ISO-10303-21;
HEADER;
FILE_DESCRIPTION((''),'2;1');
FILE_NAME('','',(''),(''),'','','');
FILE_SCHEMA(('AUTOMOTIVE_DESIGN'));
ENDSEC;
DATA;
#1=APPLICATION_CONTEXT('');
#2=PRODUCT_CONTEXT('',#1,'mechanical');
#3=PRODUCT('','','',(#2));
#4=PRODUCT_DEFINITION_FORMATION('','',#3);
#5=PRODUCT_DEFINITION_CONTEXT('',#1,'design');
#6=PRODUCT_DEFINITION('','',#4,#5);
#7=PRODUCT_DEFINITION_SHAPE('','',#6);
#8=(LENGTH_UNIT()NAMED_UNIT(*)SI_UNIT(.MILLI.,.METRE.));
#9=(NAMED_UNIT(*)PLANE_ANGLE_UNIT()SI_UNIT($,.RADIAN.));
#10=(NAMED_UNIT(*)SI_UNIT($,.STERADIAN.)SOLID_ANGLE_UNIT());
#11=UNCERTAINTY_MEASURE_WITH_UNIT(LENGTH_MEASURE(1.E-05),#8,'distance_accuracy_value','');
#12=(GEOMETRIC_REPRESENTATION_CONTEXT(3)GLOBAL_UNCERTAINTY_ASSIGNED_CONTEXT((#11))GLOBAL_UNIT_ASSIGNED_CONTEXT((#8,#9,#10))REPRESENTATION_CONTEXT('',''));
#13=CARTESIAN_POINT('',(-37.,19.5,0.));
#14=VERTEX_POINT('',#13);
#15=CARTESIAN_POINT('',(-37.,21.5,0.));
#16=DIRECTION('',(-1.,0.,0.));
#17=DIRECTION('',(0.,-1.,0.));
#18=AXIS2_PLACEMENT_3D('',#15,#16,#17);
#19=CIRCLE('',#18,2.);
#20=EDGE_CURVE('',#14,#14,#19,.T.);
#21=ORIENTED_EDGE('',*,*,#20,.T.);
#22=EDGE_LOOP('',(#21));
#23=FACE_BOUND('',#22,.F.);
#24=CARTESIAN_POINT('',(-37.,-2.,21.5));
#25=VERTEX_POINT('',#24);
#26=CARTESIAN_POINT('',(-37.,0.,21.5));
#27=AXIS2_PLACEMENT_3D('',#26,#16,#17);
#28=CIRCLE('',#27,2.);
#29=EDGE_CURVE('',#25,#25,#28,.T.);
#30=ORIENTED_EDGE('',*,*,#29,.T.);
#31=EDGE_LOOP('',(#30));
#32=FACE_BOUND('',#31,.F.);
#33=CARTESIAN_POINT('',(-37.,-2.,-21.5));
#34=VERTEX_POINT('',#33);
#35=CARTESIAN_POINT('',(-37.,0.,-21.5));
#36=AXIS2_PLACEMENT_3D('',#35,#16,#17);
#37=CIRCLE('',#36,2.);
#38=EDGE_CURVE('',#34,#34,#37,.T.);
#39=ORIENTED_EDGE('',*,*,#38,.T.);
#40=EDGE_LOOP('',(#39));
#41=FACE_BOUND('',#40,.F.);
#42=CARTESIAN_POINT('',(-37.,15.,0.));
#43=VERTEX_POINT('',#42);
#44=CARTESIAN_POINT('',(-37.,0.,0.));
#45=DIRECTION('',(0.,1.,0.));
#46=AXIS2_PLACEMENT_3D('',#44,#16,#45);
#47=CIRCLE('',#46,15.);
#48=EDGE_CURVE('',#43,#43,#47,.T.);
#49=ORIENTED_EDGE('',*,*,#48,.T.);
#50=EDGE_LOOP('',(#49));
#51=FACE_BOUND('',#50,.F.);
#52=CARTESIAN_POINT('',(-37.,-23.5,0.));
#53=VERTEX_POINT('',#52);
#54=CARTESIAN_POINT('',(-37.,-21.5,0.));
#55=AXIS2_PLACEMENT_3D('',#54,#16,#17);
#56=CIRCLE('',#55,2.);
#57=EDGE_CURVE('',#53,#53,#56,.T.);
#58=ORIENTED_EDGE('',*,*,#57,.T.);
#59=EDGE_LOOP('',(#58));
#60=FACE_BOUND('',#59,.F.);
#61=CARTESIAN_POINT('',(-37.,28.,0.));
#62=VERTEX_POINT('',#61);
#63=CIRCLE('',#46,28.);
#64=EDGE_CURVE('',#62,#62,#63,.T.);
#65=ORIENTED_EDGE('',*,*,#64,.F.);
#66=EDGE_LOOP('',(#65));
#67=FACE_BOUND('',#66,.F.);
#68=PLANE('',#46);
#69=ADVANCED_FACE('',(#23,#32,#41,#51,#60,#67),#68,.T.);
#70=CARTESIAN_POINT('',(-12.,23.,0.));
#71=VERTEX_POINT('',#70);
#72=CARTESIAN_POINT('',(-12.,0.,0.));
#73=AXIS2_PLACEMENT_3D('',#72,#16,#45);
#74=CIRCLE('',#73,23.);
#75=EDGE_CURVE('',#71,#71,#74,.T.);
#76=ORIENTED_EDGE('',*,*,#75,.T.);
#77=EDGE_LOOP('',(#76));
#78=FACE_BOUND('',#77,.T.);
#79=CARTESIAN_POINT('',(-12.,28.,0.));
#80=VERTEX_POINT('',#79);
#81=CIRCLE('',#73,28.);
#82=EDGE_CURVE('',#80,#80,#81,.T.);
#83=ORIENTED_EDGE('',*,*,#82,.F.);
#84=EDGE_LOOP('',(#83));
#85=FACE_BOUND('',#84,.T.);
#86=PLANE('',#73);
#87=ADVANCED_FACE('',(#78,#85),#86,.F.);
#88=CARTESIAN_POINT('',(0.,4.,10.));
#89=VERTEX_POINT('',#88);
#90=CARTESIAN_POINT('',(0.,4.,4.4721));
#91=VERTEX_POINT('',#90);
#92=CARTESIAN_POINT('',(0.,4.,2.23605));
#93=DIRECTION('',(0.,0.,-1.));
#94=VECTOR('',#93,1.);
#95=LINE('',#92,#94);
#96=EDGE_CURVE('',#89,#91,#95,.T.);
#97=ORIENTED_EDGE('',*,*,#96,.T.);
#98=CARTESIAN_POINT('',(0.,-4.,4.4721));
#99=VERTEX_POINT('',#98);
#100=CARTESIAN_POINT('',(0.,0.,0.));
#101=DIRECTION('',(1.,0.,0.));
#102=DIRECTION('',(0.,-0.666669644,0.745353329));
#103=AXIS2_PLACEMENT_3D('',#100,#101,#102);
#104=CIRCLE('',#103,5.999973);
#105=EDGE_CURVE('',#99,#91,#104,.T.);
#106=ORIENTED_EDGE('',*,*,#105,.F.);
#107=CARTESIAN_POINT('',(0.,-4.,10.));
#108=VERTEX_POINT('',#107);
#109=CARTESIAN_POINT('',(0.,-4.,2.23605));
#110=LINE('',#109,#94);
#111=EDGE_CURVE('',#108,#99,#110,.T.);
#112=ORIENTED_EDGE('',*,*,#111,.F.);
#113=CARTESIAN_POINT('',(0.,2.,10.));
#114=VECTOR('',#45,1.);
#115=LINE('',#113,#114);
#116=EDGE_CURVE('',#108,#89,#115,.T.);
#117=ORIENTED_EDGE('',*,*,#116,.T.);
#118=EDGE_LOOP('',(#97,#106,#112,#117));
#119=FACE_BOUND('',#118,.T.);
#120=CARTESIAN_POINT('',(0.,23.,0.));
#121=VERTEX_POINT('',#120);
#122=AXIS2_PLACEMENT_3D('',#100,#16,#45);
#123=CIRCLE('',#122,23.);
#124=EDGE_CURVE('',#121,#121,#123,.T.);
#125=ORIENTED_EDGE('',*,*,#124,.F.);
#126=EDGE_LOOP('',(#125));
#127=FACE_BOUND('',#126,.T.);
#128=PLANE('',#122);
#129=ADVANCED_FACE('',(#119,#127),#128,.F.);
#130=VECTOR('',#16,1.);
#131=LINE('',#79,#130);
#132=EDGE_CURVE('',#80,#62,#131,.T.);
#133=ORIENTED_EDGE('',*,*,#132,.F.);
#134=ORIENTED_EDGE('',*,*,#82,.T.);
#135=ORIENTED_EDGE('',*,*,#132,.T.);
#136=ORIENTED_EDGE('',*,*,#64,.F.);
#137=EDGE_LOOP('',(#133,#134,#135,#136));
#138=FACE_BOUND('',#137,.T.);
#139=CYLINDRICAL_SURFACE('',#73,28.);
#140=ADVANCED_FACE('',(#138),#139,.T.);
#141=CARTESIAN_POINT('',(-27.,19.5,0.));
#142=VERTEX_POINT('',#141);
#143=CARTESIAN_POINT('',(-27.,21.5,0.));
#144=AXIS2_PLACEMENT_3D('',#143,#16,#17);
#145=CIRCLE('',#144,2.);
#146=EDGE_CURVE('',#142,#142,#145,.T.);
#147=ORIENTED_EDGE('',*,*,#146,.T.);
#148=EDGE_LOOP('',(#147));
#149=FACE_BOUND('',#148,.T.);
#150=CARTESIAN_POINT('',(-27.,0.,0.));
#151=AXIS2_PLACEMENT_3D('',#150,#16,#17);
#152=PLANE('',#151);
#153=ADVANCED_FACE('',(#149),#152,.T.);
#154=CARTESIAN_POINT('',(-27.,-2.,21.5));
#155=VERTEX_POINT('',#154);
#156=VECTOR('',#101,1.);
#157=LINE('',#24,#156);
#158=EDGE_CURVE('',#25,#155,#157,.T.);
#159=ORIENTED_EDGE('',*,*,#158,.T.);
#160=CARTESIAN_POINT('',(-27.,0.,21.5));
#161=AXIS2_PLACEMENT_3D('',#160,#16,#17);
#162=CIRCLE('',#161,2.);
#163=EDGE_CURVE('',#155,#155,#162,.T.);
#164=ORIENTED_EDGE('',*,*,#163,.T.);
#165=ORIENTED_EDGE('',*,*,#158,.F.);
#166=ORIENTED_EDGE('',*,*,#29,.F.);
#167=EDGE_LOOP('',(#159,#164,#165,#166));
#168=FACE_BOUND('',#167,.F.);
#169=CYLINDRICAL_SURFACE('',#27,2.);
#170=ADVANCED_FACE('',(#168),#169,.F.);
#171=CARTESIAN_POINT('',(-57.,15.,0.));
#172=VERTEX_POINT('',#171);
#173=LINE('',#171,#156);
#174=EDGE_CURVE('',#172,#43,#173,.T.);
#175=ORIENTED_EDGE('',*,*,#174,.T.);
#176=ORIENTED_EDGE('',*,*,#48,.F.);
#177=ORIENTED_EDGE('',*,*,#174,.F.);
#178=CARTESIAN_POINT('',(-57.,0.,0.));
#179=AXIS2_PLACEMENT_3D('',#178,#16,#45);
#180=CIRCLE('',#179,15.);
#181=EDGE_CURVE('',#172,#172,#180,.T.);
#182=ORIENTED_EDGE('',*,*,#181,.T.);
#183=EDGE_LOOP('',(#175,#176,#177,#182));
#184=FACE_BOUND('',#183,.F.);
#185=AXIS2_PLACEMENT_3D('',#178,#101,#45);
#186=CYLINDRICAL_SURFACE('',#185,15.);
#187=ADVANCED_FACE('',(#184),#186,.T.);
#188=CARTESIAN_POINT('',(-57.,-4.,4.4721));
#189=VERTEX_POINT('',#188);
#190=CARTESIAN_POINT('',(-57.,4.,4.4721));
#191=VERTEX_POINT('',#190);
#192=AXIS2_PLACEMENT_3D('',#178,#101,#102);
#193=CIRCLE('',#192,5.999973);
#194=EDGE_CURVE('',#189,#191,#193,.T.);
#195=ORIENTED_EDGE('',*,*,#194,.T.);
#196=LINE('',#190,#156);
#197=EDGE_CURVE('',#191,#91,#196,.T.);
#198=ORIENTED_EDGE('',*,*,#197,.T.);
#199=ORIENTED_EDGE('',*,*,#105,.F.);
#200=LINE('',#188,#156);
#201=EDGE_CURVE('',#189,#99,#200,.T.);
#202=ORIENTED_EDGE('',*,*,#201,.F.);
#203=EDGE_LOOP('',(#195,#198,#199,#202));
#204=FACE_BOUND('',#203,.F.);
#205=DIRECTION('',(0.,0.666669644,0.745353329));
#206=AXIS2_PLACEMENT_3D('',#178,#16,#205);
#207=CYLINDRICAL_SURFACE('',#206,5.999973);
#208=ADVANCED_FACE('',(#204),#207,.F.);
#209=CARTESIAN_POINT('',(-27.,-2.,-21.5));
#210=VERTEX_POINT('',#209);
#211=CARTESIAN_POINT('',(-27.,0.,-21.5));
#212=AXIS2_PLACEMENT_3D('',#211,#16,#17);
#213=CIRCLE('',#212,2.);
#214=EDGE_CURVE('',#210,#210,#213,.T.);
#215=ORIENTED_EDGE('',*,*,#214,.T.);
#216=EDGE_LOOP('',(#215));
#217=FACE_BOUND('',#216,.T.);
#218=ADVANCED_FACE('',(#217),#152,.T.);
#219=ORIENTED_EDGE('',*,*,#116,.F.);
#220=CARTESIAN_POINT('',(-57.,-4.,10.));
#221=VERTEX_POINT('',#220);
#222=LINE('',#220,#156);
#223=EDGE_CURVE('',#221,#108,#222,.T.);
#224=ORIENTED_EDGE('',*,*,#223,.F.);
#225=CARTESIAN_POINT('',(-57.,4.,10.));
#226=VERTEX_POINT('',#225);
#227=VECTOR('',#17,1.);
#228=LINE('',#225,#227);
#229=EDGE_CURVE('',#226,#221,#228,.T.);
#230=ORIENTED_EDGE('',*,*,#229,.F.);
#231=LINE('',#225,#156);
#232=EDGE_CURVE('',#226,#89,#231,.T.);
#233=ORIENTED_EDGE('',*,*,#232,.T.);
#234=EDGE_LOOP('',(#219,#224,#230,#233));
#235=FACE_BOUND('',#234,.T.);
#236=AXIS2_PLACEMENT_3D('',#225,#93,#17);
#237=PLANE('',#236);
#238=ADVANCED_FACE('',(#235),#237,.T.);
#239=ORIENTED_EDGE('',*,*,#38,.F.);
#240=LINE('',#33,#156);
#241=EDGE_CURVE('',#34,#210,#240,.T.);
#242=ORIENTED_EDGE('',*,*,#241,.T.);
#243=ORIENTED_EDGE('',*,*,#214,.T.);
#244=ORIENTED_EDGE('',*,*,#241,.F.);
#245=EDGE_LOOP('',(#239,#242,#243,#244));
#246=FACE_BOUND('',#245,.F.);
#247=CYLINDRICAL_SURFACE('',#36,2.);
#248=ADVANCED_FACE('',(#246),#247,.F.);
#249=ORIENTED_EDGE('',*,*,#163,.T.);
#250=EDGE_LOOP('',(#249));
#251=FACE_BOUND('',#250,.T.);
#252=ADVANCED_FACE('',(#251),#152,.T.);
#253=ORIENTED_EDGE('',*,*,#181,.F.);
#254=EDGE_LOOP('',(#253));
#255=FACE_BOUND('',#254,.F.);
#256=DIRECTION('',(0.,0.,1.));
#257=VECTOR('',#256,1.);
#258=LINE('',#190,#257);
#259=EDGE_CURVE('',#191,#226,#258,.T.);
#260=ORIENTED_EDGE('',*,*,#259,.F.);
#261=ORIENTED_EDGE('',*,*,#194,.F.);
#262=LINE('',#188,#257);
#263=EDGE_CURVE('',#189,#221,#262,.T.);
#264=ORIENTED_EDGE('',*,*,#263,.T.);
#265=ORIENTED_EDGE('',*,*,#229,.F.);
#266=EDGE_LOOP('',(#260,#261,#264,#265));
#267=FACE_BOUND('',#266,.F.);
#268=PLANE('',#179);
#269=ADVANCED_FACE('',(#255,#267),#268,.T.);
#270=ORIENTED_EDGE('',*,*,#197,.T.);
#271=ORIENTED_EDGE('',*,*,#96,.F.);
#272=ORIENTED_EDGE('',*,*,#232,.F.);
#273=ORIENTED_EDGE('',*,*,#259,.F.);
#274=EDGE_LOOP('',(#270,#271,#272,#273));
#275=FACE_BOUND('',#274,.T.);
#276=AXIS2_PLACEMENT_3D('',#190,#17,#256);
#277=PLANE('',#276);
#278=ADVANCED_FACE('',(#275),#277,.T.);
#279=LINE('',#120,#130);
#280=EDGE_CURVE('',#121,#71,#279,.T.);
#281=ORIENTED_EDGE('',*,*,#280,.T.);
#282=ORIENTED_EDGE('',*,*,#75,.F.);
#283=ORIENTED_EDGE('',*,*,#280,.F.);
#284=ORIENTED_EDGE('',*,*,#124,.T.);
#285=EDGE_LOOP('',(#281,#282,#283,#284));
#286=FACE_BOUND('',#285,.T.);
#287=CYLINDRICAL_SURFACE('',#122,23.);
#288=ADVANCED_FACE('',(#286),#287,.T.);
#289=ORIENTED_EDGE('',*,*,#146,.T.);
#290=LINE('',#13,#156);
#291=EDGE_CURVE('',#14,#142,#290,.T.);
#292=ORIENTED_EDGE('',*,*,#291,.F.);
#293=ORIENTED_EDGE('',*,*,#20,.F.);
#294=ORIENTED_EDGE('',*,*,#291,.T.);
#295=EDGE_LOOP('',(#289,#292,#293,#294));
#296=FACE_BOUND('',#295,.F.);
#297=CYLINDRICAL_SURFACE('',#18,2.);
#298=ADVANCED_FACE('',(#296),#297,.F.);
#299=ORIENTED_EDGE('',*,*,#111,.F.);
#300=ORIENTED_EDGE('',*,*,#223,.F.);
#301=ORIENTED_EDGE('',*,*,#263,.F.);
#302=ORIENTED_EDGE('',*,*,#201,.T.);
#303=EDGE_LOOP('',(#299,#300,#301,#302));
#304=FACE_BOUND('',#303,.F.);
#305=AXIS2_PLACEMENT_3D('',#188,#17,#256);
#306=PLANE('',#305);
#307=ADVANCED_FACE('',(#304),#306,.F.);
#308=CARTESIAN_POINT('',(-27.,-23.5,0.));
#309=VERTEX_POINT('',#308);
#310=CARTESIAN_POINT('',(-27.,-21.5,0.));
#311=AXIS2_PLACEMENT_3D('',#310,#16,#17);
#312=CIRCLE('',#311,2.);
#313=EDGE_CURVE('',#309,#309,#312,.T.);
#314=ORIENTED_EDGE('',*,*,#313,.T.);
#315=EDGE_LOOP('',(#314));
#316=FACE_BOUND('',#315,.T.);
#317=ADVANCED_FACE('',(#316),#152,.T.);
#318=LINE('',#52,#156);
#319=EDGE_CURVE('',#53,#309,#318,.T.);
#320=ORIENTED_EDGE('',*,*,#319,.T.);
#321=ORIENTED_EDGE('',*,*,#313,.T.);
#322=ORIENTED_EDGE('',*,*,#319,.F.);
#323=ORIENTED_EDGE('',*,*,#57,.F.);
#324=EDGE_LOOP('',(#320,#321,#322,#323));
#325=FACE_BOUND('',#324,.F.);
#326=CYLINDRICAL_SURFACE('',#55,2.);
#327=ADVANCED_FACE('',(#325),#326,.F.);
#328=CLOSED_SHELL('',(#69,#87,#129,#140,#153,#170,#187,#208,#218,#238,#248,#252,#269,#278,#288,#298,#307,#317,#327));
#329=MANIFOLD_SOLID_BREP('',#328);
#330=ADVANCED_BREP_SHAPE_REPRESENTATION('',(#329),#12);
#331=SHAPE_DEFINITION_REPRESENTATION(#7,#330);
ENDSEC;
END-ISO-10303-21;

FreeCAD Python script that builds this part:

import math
import FreeCAD as App
import Part
import Sketcher

V = App.Vector

doc = App.newDocument("Part")
params = doc.addObject("Spreadsheet::Sheet", "Params")
for row, (alias, value) in enumerate([
    ("sketch1_width", "57 mm"),
    ("sketch1_width2", "12 mm"),
    ("sketch1_width3", "25 mm"),
    ("sketch1_height", "23 mm"),
    ("sketch1_height2", "5 mm"),
    ("revolution_angle", "360 deg"),
    ("sketch2_radius", "6 mm"),
    ("sketch2_width", "8 mm"),
    ("sketch3_diameter", "4 mm"),
    ("pocket2_length", "10 mm"),
], start=1):
    params.set(f"A{row}", alias)
    params.set(f"B{row}", "=" + value)
    params.setAlias(f"B{row}", alias)

body = doc.addObject("PartDesign::Body", "Body")

# Sketch on XY plane
sketch1 = body.newObject("Sketcher::SketchObject", "Sketch")
sketch1.AttachmentSupport = (doc.getObject("XY_Plane"), [""])
sketch1.MapMode = "FlatFace"
sketch1.addGeometry([
    Part.LineSegment(V(-57, 0, 0), V(0, 0, 0)),  # 0
    Part.LineSegment(V(0, 0, 0), V(0, 23, 0)),  # 1
    Part.LineSegment(V(0, 23, 0), V(-12, 23, 0)),  # 2
    Part.LineSegment(V(-12, 23, 0), V(-12, 28, 0)),  # 3
    Part.LineSegment(V(-12, 28, 0), V(-37, 28, 0)),  # 4
    Part.LineSegment(V(-37, 28, 0), V(-37, 15, 0)),  # 5
    Part.LineSegment(V(-37, 15, 0), V(-57, 15, 0)),  # 6
    Part.LineSegment(V(-57, 15, 0), V(-57, 0, 0)),  # 7
], False)
sketch1.addConstraint([
    Sketcher.Constraint("Coincident", 0, 2, 1, 1),
    Sketcher.Constraint("Coincident", 1, 2, 2, 1),
    Sketcher.Constraint("Coincident", 2, 2, 3, 1),
    Sketcher.Constraint("Coincident", 3, 2, 4, 1),
    Sketcher.Constraint("Coincident", 4, 2, 5, 1),
    Sketcher.Constraint("Coincident", 5, 2, 6, 1),
    Sketcher.Constraint("Coincident", 6, 2, 7, 1),
    Sketcher.Constraint("Coincident", 7, 2, 0, 1),
    Sketcher.Constraint("Horizontal", 0),
    Sketcher.Constraint("Vertical", 1),
    Sketcher.Constraint("Horizontal", 2),
    Sketcher.Constraint("Vertical", 3),
    Sketcher.Constraint("Horizontal", 4),
    Sketcher.Constraint("Vertical", 5),
    Sketcher.Constraint("Horizontal", 6),
    Sketcher.Constraint("Vertical", 7),
    Sketcher.Constraint("Coincident", 0, 2, -1, 1),
    Sketcher.Constraint("DistanceX", 0, 1, 0, 2, 57.0),
    Sketcher.Constraint("DistanceX", 2, 2, 2, 1, 12.0),
    Sketcher.Constraint("DistanceX", 4, 2, 4, 1, 25.0),
    Sketcher.Constraint("DistanceY", 1, 1, 1, 2, 23.0),
    Sketcher.Constraint("DistanceY", 3, 1, 3, 2, 5.0),
    Sketcher.Constraint("DistanceY", 7, 2, 7, 1, 15.0),
])
sketch1.setExpression("Constraints[17]", "Params.sketch1_width")
sketch1.setExpression("Constraints[18]", "Params.sketch1_width2")
sketch1.setExpression("Constraints[19]", "Params.sketch1_width3")
sketch1.setExpression("Constraints[20]", "Params.sketch1_height")
sketch1.setExpression("Constraints[21]", "Params.sketch1_height2")
revolution = body.newObject("PartDesign::Revolution", "Revolution")
revolution.Profile = sketch1
revolution.ReferenceAxis = (sketch1, ["H_Axis"])
revolution.setExpression("Angle", "Params.revolution_angle")

# Sketch on YZ plane
sketch2 = body.newObject("Sketcher::SketchObject", "Sketch001")
sketch2.AttachmentSupport = (doc.getObject("YZ_Plane"), [""])
sketch2.MapMode = "FlatFace"
sketch2.AttachmentOffset = App.Placement(V(0, 0, -57), App.Rotation())
sketch2.addGeometry([
    Part.LineSegment(V(4, 10, 0), V(4, 4, 0)),
    Part.ArcOfCircle(Part.Circle(V(0, 0, 0), V(0, 0, 1), 6), math.radians(132), math.radians(408)),
    Part.LineSegment(V(-4, 4, 0), V(-4, 10, 0)),
    Part.LineSegment(V(-4, 10, 0), V(4, 10, 0)),
], False)
sketch2.addConstraint([
    Sketcher.Constraint("Coincident", 0, 2, 1, 2),
    Sketcher.Constraint("Coincident", 1, 1, 2, 1),
    Sketcher.Constraint("Coincident", 2, 2, 3, 1),
    Sketcher.Constraint("Coincident", 3, 2, 0, 1),
    Sketcher.Constraint("Vertical", 0),
    Sketcher.Constraint("Vertical", 2),
    Sketcher.Constraint("Horizontal", 3),
    Sketcher.Constraint("Coincident", 1, 3, -1, 1),
    Sketcher.Constraint("Horizontal", 0, 2, 1, 1),
    Sketcher.Constraint("Radius", 1, 6.0),
    Sketcher.Constraint("DistanceX", 3, 1, 3, 2, 8.0),
    Sketcher.Constraint("DistanceY", -1, 1, 2, 2, 10.0),
])
sketch2.setExpression("Constraints[9]", "Params.sketch2_radius")
sketch2.setExpression("Constraints[10]", "Params.sketch2_width")
pocket1 = body.newObject("PartDesign::Pocket", "Pocket")
pocket1.Profile = sketch2
pocket1.Type = "ThroughAll"
pocket1.Reversed = True

# Sketch on YZ plane
sketch3 = body.newObject("Sketcher::SketchObject", "Sketch002")
sketch3.AttachmentSupport = (doc.getObject("YZ_Plane"), [""])
sketch3.MapMode = "FlatFace"
sketch3.AttachmentOffset = App.Placement(V(0, 0, -37), App.Rotation())
sketch3.addGeometry([
    Part.Circle(V(0, 21.5, 0), V(0, 0, 1), 2),
    Part.Circle(V(21.5, 0, 0), V(0, 0, 1), 2),
    Part.Circle(V(0, -21.5, 0), V(0, 0, 1), 2),
    Part.Circle(V(-21.5, 0, 0), V(0, 0, 1), 2),
], False)
sketch3.addConstraint([
    Sketcher.Constraint("Equal", 0, 1),
    Sketcher.Constraint("Equal", 1, 2),
    Sketcher.Constraint("Equal", 2, 3),
    Sketcher.Constraint("Symmetric", 0, 3, 2, 3, -1, 1),
    Sketcher.Constraint("Symmetric", 1, 3, 3, 3, -1, 1),
    Sketcher.Constraint("PointOnObject", 0, 3, -2),
    Sketcher.Constraint("PointOnObject", 1, 3, -1),
    Sketcher.Constraint("Diameter", 0, 4.0),
    Sketcher.Constraint("DistanceY", 2, 3, 0, 3, 43.0),
    Sketcher.Constraint("DistanceX", 3, 3, 1, 3, 43.0),
])
sketch3.setExpression("Constraints[7]", "Params.sketch3_diameter")
pocket2 = body.newObject("PartDesign::Pocket", "Pocket001")
pocket2.Profile = sketch3
pocket2.setExpression("Length", "Params.pocket2_length")
pocket2.Reversed = True

doc.recompute()
